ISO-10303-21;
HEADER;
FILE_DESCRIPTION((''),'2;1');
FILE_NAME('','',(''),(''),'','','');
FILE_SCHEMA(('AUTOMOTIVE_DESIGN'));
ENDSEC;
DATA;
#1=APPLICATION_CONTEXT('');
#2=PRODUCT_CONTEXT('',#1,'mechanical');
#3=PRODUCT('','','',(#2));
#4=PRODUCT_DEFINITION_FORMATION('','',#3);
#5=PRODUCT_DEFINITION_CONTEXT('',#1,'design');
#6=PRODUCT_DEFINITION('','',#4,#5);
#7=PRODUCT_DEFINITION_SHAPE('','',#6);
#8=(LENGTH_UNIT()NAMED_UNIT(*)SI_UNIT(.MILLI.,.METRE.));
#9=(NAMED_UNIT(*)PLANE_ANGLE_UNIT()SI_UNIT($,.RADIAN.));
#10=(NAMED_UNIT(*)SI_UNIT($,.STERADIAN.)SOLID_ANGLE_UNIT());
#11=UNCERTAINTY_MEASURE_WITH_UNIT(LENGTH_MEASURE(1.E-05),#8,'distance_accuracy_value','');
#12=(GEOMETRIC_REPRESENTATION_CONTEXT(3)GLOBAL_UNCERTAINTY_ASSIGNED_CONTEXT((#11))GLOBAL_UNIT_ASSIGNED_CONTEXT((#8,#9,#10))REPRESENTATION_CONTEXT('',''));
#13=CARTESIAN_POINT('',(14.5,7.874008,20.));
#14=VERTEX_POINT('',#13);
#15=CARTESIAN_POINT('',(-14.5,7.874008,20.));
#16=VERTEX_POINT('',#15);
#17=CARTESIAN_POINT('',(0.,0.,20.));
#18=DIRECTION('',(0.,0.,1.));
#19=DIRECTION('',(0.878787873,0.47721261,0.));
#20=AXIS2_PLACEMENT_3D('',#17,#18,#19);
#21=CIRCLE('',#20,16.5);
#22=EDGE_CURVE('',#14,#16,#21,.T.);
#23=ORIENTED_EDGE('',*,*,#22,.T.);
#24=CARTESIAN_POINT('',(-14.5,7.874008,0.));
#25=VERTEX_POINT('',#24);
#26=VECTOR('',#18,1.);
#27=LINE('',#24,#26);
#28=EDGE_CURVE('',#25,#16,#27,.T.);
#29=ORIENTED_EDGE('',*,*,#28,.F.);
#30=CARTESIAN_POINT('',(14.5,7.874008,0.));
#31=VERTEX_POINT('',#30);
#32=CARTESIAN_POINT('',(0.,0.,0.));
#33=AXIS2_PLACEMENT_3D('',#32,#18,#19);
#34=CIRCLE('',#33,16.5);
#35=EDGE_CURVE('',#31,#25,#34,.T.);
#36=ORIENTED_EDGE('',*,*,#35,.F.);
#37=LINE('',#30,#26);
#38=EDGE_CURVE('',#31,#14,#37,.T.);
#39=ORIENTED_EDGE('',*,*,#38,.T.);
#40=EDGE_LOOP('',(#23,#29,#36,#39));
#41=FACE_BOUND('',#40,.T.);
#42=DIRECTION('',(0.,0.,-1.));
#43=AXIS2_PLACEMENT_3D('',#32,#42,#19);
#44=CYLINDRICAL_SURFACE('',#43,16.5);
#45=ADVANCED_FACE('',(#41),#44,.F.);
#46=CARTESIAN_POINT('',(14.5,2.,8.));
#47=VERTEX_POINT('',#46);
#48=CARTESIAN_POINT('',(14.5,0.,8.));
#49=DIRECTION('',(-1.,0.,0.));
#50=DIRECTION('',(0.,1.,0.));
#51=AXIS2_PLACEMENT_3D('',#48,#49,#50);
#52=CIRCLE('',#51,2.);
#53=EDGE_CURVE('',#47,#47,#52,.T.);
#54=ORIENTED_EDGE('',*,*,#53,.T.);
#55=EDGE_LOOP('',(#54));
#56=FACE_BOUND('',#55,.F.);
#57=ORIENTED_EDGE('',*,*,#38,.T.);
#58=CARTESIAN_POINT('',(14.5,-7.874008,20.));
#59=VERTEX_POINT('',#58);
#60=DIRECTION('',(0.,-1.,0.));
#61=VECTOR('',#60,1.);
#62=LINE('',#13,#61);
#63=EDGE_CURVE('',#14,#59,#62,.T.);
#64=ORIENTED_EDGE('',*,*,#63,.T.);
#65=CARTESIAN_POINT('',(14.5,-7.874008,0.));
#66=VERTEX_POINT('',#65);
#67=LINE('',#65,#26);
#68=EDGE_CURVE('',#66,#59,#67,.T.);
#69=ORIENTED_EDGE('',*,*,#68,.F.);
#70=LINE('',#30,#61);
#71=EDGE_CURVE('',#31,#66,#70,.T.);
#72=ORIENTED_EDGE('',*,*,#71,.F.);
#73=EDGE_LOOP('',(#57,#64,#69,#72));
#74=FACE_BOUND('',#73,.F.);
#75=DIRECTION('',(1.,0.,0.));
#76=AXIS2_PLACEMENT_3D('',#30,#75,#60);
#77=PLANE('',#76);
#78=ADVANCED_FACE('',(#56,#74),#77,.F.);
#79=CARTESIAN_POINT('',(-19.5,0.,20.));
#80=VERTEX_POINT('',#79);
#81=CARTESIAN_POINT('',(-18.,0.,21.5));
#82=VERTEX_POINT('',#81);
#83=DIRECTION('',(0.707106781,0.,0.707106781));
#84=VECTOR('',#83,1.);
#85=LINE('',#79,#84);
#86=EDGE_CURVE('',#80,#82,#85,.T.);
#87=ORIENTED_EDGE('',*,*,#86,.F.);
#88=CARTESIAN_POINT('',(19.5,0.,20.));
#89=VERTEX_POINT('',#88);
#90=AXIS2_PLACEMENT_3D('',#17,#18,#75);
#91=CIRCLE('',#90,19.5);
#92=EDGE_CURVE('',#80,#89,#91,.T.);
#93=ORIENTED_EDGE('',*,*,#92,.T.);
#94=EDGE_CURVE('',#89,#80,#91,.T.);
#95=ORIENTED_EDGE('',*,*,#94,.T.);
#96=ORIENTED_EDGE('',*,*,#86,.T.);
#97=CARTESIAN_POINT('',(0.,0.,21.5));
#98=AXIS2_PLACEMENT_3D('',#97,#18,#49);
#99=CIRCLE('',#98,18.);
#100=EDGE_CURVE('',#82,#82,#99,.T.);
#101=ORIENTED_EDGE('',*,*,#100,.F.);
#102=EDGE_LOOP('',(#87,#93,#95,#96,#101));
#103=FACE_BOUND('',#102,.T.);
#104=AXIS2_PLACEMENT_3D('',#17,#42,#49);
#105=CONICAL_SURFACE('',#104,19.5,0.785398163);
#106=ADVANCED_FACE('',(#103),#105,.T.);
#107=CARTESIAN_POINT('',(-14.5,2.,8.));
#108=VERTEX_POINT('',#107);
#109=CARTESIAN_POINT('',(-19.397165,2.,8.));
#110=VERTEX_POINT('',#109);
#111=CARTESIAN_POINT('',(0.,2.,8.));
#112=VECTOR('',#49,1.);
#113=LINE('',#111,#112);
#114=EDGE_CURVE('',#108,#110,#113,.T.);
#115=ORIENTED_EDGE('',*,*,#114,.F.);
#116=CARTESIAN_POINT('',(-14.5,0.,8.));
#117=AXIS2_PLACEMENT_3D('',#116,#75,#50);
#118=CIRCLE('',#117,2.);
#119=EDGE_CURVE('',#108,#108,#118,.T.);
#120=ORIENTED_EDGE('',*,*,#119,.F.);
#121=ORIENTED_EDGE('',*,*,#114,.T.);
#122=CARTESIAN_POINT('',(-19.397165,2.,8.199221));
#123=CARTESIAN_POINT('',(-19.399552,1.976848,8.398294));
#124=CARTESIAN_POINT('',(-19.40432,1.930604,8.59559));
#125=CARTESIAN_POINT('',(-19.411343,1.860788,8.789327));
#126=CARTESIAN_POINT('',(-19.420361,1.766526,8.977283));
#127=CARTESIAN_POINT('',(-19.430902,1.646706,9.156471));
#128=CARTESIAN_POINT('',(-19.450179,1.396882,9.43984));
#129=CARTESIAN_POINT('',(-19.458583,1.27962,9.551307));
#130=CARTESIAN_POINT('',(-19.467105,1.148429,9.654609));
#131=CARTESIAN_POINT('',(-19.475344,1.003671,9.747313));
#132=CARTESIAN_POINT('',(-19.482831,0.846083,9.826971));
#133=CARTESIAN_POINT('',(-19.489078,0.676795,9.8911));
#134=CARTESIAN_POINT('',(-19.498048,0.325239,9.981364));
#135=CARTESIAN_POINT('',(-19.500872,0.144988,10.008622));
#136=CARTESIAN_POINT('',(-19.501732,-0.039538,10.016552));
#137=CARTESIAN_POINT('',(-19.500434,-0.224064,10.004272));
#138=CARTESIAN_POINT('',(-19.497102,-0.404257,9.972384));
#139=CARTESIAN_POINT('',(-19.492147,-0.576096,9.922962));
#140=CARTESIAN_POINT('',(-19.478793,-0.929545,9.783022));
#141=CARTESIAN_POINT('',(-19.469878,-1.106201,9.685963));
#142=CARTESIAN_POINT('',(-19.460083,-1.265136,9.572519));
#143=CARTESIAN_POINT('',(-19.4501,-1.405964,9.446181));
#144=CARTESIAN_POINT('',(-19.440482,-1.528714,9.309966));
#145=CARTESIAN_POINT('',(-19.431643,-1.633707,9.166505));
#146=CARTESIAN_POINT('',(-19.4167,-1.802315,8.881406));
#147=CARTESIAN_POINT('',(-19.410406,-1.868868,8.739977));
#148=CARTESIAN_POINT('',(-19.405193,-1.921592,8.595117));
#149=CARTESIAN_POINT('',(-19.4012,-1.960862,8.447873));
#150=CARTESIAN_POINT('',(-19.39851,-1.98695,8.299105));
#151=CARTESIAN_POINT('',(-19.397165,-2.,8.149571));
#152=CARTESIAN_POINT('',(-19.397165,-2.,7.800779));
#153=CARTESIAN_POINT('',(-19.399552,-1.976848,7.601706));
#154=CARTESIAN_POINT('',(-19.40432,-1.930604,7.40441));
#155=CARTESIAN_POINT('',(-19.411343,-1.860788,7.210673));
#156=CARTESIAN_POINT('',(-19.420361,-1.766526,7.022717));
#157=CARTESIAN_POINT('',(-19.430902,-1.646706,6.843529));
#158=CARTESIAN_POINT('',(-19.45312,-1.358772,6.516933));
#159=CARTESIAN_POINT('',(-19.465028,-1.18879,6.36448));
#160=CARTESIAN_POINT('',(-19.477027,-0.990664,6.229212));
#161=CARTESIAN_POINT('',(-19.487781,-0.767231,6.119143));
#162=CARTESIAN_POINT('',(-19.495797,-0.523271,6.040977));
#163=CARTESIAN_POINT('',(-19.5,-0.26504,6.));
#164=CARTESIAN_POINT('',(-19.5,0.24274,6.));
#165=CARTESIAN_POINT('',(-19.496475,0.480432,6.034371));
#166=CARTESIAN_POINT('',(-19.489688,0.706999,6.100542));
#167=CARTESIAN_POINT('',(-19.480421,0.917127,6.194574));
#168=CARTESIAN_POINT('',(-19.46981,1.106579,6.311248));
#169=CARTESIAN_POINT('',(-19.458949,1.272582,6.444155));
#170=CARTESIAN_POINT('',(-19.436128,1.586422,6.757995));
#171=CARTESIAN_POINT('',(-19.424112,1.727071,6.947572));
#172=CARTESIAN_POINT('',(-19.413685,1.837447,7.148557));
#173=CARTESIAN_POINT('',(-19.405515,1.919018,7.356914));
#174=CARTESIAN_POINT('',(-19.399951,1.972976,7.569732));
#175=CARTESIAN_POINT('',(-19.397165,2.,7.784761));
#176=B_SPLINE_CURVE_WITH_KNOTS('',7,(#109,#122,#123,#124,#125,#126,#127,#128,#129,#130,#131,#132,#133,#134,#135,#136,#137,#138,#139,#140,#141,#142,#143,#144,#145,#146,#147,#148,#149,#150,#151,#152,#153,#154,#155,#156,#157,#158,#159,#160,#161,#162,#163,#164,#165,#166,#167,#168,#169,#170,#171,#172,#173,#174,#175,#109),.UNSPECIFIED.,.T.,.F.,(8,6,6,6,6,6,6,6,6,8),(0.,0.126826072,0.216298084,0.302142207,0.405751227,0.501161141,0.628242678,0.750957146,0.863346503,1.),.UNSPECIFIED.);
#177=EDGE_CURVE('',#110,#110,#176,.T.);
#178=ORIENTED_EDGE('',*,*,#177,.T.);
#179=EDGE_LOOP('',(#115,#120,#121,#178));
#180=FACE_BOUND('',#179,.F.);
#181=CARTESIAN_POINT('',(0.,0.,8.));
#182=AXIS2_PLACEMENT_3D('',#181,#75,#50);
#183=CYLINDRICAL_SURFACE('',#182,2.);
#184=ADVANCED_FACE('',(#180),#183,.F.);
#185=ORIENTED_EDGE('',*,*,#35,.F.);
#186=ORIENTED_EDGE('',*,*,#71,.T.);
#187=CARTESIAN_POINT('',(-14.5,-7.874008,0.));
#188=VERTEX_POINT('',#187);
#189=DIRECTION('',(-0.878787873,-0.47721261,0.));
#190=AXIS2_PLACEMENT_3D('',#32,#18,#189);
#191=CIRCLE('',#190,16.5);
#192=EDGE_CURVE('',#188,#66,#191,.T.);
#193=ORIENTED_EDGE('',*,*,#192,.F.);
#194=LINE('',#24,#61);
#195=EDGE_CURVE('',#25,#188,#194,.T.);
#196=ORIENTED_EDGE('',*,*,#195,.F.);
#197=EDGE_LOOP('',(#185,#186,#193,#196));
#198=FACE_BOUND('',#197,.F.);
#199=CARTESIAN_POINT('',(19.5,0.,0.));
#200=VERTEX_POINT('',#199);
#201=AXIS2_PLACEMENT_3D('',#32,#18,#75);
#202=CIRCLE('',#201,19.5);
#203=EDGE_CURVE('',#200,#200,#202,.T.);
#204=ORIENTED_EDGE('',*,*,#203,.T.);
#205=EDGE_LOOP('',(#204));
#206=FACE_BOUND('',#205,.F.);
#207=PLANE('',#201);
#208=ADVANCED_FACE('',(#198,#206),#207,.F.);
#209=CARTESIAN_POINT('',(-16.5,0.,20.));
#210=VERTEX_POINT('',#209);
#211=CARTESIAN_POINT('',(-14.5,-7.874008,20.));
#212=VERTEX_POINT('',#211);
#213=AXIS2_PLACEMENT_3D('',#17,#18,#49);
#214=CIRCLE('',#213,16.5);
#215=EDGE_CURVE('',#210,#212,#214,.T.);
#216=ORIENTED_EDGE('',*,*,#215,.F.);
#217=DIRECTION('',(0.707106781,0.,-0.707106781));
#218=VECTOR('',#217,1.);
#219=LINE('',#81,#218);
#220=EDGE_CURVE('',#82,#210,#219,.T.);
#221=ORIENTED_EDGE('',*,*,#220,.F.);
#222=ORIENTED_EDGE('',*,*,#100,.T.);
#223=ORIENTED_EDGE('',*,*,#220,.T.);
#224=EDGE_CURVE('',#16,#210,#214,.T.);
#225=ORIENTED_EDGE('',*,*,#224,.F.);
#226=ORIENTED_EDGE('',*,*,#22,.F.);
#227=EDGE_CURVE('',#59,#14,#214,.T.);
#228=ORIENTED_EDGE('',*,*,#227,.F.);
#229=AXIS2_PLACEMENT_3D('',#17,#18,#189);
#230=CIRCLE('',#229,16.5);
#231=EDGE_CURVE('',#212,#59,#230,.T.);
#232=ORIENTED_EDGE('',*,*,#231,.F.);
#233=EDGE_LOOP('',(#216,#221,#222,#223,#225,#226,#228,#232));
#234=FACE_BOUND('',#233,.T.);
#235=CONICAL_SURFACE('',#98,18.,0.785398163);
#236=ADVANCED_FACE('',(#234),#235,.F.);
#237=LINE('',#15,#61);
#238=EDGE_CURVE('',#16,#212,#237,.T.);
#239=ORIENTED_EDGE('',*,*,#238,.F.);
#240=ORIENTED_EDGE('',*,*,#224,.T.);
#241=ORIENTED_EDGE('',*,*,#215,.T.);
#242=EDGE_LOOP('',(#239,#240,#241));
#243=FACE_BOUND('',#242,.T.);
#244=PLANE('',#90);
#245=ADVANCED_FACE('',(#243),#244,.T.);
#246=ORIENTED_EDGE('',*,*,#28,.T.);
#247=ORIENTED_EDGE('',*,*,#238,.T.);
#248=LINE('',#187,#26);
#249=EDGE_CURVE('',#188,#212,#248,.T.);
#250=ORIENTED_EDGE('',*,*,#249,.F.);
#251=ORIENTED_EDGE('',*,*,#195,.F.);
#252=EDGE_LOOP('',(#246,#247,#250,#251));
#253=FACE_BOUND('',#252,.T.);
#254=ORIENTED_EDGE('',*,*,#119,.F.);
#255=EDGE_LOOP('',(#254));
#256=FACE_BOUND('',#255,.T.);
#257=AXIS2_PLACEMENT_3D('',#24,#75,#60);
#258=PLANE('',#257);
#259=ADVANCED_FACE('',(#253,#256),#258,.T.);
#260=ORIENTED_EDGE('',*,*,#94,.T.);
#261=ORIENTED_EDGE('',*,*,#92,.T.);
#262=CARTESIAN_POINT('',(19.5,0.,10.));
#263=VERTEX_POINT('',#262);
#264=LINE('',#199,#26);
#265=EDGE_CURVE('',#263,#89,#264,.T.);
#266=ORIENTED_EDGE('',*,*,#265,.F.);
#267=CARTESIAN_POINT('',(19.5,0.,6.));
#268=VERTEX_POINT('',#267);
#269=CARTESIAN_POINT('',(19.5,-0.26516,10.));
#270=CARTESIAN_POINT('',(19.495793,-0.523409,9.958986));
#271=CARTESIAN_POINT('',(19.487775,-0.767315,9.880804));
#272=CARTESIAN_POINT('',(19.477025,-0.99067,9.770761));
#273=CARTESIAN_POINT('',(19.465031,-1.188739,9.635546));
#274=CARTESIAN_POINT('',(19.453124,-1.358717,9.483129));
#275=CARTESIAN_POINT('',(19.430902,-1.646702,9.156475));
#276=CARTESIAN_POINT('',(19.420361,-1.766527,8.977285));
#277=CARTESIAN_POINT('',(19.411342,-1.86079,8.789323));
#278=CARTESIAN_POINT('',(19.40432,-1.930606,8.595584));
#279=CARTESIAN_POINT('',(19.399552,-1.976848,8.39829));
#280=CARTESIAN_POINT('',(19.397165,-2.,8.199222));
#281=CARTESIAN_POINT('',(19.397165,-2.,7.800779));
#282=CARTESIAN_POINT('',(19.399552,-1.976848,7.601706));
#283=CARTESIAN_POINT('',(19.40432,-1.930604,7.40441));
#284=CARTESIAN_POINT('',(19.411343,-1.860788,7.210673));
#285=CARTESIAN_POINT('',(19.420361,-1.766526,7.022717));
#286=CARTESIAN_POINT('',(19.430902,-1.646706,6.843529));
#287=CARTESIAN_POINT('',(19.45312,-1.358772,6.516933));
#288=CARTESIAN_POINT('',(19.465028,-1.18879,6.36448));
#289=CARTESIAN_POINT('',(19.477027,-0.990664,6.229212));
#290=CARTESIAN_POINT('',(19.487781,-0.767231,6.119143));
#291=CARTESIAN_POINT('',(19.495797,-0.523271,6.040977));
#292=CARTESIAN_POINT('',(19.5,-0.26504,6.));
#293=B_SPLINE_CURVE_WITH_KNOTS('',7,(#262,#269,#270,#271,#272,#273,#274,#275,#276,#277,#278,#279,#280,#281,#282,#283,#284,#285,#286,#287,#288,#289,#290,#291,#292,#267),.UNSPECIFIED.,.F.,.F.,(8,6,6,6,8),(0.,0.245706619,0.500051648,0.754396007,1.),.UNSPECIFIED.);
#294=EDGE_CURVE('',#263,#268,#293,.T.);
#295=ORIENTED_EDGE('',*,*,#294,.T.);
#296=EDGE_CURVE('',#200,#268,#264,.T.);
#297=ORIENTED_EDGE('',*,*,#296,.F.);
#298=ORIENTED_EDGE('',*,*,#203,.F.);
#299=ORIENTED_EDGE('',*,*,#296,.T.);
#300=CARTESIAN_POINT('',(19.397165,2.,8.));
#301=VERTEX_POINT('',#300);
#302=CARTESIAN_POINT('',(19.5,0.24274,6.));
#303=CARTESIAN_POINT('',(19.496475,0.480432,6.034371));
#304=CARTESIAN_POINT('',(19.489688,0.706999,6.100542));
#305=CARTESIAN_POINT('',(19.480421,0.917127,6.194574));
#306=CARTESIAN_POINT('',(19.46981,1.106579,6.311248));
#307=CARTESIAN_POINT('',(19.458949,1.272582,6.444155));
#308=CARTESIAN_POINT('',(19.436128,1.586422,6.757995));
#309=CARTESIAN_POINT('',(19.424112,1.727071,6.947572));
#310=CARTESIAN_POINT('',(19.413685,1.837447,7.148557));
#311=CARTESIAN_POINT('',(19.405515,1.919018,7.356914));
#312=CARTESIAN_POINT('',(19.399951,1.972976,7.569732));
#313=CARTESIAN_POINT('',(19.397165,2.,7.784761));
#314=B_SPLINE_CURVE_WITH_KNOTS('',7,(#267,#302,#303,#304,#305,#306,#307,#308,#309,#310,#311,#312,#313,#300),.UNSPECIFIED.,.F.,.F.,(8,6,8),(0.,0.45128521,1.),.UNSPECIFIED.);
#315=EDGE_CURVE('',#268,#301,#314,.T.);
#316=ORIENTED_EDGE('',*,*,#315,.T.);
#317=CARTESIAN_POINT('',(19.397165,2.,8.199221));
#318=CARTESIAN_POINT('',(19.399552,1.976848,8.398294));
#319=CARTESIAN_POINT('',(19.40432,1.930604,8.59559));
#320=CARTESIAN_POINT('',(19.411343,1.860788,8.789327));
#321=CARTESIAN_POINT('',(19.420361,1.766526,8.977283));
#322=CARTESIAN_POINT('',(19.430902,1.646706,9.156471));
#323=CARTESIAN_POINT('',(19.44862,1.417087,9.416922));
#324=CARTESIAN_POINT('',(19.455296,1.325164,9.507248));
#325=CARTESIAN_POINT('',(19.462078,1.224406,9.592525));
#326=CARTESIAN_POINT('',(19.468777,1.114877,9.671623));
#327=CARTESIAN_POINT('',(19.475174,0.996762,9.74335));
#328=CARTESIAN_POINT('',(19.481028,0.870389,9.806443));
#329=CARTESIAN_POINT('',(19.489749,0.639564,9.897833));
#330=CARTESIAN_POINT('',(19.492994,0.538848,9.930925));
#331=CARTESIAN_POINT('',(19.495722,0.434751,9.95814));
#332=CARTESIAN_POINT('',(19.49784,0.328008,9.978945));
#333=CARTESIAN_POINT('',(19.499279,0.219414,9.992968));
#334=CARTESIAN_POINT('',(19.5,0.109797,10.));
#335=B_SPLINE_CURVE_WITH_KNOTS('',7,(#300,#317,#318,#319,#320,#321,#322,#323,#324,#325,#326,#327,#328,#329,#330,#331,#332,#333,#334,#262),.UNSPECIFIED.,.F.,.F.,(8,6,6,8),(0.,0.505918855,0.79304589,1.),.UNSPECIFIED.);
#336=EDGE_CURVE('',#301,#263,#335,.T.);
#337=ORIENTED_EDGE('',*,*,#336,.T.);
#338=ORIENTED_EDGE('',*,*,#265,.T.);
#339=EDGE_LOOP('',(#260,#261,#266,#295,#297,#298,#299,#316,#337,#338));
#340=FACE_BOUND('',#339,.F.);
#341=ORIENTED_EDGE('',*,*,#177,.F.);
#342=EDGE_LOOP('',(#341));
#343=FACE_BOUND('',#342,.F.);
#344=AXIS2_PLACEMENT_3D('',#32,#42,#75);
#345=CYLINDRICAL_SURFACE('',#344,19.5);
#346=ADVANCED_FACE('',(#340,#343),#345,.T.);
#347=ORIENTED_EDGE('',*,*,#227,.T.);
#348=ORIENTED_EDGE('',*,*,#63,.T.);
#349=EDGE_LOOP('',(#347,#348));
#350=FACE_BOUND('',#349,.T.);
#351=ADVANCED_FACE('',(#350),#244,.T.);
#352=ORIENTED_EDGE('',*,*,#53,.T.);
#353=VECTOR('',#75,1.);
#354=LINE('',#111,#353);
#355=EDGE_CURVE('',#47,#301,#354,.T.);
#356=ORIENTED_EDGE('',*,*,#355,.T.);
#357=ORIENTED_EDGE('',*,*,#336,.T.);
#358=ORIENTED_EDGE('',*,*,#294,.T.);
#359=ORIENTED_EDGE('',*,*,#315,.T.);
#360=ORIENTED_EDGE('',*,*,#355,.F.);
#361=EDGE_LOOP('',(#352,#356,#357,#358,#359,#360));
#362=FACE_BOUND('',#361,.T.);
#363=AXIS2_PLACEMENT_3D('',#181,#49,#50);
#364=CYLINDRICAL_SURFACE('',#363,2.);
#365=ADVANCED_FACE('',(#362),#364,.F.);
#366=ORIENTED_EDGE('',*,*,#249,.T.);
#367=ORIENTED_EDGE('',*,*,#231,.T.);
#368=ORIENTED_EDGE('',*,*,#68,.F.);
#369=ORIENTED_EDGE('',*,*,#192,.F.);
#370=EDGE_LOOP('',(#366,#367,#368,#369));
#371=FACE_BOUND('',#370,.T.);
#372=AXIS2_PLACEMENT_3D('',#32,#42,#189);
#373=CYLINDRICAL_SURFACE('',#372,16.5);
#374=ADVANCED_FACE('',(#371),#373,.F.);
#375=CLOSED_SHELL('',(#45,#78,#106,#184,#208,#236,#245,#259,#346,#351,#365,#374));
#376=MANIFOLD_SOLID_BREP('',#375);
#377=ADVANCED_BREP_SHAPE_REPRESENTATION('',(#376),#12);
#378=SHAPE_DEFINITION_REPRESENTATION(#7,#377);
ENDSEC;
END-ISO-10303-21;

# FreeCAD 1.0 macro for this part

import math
import FreeCAD as App
import Part
import Sketcher
from FreeCAD import Vector

doc = App.newDocument("Part")
body = doc.addObject("PartDesign::Body", "Body")

# Sketch on XY plane
sketch1 = body.newObject("Sketcher::SketchObject", "Sketch")
sketch1.AttachmentSupport = (doc.getObject("XY_Plane"), [""])
sketch1.MapMode = "FlatFace"
sketch1.addGeometry([
    Part.Circle(Vector(0, 0, 0), Vector(0, 0, 1), 20),  # 0
    Part.ArcOfCircle(Part.Circle(Vector(0, 0, 0), Vector(0, 0, 1), 17), math.radians(29), math.radians(151)),  # 1
    Part.LineSegment(Vector(14, 8, 0), Vector(14, -8, 0)),  # 2
    Part.ArcOfCircle(Part.Circle(Vector(0, 0, 0), Vector(0, 0, 1), 17), math.radians(-151), math.radians(-29)),  # 3
    Part.LineSegment(Vector(-14, -8, 0), Vector(-14, 8, 0)),  # 4
], False)
sketch1.addConstraint([
    Sketcher.Constraint("Coincident", 1, 1, 2, 1),
    Sketcher.Constraint("Coincident", 2, 2, 3, 2),
    Sketcher.Constraint("Coincident", 3, 1, 4, 1),
    Sketcher.Constraint("Coincident", 4, 2, 1, 2),
    Sketcher.Constraint("Vertical", 2),
    Sketcher.Constraint("Vertical", 4),
    Sketcher.Constraint("Coincident", 0, 3, -1, 1),
    Sketcher.Constraint("Coincident", 1, 3, -1, 1),
    Sketcher.Constraint("Coincident", 3, 3, -1, 1),
    Sketcher.Constraint("Equal", 1, 3),
    Sketcher.Constraint("Horizontal", 2, 2, 3, 1),
    Sketcher.Constraint("Diameter", 0, 39.0),
    Sketcher.Constraint("Radius", 1, 16.5),
    Sketcher.Constraint("DistanceX", 3, 1, 2, 2, 29.0),
])
pad1 = body.newObject("PartDesign::Pad", "Pad")
pad1.Profile = sketch1
pad1.Length = 20

# Sketch on XZ plane
sketch2 = body.newObject("Sketcher::SketchObject", "Sketch001")
sketch2.AttachmentSupport = (doc.getObject("XZ_Plane"), [""])
sketch2.MapMode = "FlatFace"
sketch2.addGeometry([
    Part.LineSegment(Vector(-18, 21.5, 0), Vector(-19.5, 20, 0)),
    Part.LineSegment(Vector(-19.5, 20, 0), Vector(-16.5, 20, 0)),
    Part.LineSegment(Vector(-16.5, 20, 0), Vector(-18, 21.5, 0)),
], False)
sketch2.addConstraint([
    Sketcher.Constraint("Coincident", 0, 2, 1, 1),
    Sketcher.Constraint("Coincident", 1, 2, 2, 1),
    Sketcher.Constraint("Coincident", 2, 2, 0, 1),
    Sketcher.Constraint("Horizontal", 1),
    Sketcher.Constraint("Perpendicular", 0, 2),
    Sketcher.Constraint("Equal", 0, 2),
    Sketcher.Constraint("DistanceX", 1, 1, 1, 2, 3.0),
    Sketcher.Constraint("DistanceY", -1, 1, 0, 2, 20.0),
    Sketcher.Constraint("DistanceX", 2, 2, -1, 1, 18.0),
])
revolution = body.newObject("PartDesign::Revolution", "Revolution")
revolution.Profile = sketch2
revolution.ReferenceAxis = (sketch2, ["V_Axis"])
revolution.Angle = 360

# Sketch on YZ plane
sketch3 = body.newObject("Sketcher::SketchObject", "Sketch002")
sketch3.AttachmentSupport = (doc.getObject("YZ_Plane"), [""])
sketch3.MapMode = "FlatFace"
sketch3.addGeometry(Part.Circle(Vector(0, 8, 0), Vector(0, 0, 1), 2), False)
sketch3.addConstraint([
    Sketcher.Constraint("PointOnObject", 0, 3, -2),
    Sketcher.Constraint("Diameter", 0, 4.0),
    Sketcher.Constraint("DistanceY", -1, 1, 0, 3, 8.0),
])
pocket1 = body.newObject("PartDesign::Pocket", "Pocket")
pocket1.Profile = sketch3
pocket1.Type = "ThroughAll"
pocket1.Midplane = True

doc.recompute()
